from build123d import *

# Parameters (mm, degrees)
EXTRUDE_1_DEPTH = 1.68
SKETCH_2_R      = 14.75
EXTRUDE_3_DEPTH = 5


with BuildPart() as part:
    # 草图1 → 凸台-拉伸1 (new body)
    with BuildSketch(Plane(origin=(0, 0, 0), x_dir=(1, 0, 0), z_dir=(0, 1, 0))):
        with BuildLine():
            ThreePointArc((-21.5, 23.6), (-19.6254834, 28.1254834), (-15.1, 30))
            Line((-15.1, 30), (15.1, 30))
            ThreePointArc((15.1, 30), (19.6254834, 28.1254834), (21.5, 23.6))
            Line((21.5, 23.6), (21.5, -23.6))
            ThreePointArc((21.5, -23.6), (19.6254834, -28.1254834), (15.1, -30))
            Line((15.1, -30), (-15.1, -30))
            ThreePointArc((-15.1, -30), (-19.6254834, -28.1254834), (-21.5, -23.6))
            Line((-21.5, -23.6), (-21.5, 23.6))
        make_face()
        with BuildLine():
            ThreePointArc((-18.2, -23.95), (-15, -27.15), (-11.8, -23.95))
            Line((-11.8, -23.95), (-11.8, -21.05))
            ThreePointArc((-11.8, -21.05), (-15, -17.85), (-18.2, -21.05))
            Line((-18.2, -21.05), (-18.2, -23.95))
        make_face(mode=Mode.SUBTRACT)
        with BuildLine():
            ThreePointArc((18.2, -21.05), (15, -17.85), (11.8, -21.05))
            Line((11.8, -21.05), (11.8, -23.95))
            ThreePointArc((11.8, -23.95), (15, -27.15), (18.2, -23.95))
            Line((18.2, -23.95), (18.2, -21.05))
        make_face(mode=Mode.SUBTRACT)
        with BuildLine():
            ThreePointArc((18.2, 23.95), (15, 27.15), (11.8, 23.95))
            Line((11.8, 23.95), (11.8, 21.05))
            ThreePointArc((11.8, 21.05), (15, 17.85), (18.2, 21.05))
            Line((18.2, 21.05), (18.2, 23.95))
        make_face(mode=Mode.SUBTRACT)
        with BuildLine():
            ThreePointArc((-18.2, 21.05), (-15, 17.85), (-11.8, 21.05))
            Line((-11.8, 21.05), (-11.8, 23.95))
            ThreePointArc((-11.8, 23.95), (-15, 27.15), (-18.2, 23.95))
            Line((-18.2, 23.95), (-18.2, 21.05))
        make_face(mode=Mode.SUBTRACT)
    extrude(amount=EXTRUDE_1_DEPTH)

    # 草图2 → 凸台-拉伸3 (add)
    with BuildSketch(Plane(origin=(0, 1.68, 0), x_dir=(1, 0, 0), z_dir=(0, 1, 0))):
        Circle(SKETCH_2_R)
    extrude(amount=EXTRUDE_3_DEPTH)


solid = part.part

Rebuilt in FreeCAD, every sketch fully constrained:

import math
import FreeCAD as App
import Part
import Sketcher
from FreeCAD import Vector
Q = App.Units.Quantity

doc = App.newDocument("Part")
params = doc.addObject("Spreadsheet::Sheet", "Params")
for row, (alias, value) in enumerate([
    ("sketch1_radius", "6.4 mm"),
    ("sketch1_radius2", "3.2 mm"),
    ("sketch1_width", "30.2 mm"),
    ("sketch1_height", "47.2 mm"),
    ("sketch1_height2", "2.9 mm"),
    ("pad1_length", "1.68 mm"),
    ("sketch2_diameter", "29.5 mm"),
    ("pad2_length", "5 mm"),
], start=1):
    params.set(f"A{row}", alias)
    params.set(f"B{row}", "=" + value)
    params.setAlias(f"B{row}", alias)

body = doc.addObject("PartDesign::Body", "Body")

# Sketch on XZ plane
sketch1 = doc.addObject("Sketcher::SketchObject", "Sketch")
body.addObject(sketch1)
sketch1.AttachmentSupport = (doc.XZ_Plane, [""])
sketch1.MapMode = "FlatFace"
sketch1.addGeometry([
    Part.ArcOfCircle(Part.Circle(Vector(-15.1, -23.6, 0), Vector(0, 0, 1), 6.4), math.radians(180), math.radians(270)),  # 0
    Part.LineSegment(Vector(-21.5, -23.6, 0), Vector(-21.5, 23.6, 0)),  # 1
    Part.ArcOfCircle(Part.Circle(Vector(-15.1, 23.6, 0), Vector(0, 0, 1), 6.4), math.radians(90), math.radians(180)),  # 2
    Part.LineSegment(Vector(-15.1, 30, 0), Vector(15.1, 30, 0)),  # 3
    Part.ArcOfCircle(Part.Circle(Vector(15.1, 23.6, 0), Vector(0, 0, 1), 6.4), math.radians(0), math.radians(90)),  # 4
    Part.LineSegment(Vector(21.5, 23.6, 0), Vector(21.5, -23.6, 0)),  # 5
    Part.ArcOfCircle(Part.Circle(Vector(15.1, -23.6, 0), Vector(0, 0, 1), 6.4), math.radians(-90), math.radians(0)),  # 6
    Part.LineSegment(Vector(15.1, -30, 0), Vector(-15.1, -30, 0)),  # 7
    Part.LineSegment(Vector(18.2, 21.1, 0), Vector(18.2, 23.9, 0)),  # 8
    Part.ArcOfCircle(Part.Circle(Vector(15, 23.9, 0), Vector(0, 0, 1), 3.2), math.radians(0), math.radians(180)),  # 9
    Part.LineSegment(Vector(11.8, 23.9, 0), Vector(11.8, 21.1, 0)),  # 10
    Part.ArcOfCircle(Part.Circle(Vector(15, 21.1, 0), Vector(0, 0, 1), 3.2), math.radians(180), math.radians(360)),  # 11
    Part.LineSegment(Vector(-18.2, 23.9, 0), Vector(-18.2, 21.1, 0)),  # 12
    Part.ArcOfCircle(Part.Circle(Vector(-15, 21.1, 0), Vector(0, 0, 1), 3.2), math.radians(180), math.radians(360)),  # 13
    Part.LineSegment(Vector(-11.8, 21.1, 0), Vector(-11.8, 23.9, 0)),  # 14
    Part.ArcOfCircle(Part.Circle(Vector(-15, 23.9, 0), Vector(0, 0, 1), 3.2), math.radians(0), math.radians(180)),  # 15
    Part.LineSegment(Vector(18.2, -23.9, 0), Vector(18.2, -21.1, 0)),  # 16
    Part.ArcOfCircle(Part.Circle(Vector(15, -21.1, 0), Vector(0, 0, 1), 3.2), math.radians(0), math.radians(180)),  # 17
    Part.LineSegment(Vector(11.8, -21.1, 0), Vector(11.8, -23.9, 0)),  # 18
    Part.ArcOfCircle(Part.Circle(Vector(15, -23.9, 0), Vector(0, 0, 1), 3.2), math.radians(180), math.radians(360)),  # 19
    Part.LineSegment(Vector(-18.2, -21.1, 0), Vector(-18.2, -23.9, 0)),  # 20
    Part.ArcOfCircle(Part.Circle(Vector(-15, -23.9, 0), Vector(0, 0, 1), 3.2), math.radians(180), math.radians(360)),  # 21
    Part.LineSegment(Vector(-11.8, -23.9, 0), Vector(-11.8, -21.1, 0)),  # 22
    Part.ArcOfCircle(Part.Circle(Vector(-15, -21.1, 0), Vector(0, 0, 1), 3.2), math.radians(0), math.radians(180)),  # 23
], False)
sketch1.addConstraint([
    Sketcher.Constraint("Tangent", 0, 1, 1, 1),
    Sketcher.Constraint("Tangent", 1, 2, 2, 2),
    Sketcher.Constraint("Tangent", 2, 1, 3, 1),
    Sketcher.Constraint("Tangent", 3, 2, 4, 2),
    Sketcher.Constraint("Tangent", 4, 1, 5, 1),
    Sketcher.Constraint("Tangent", 5, 2, 6, 2),
    Sketcher.Constraint("Tangent", 6, 1, 7, 1),
    Sketcher.Constraint("Tangent", 7, 2, 0, 2),
    Sketcher.Constraint("Tangent", 8, 2, 9, 1),
    Sketcher.Constraint("Tangent", 9, 2, 10, 1),
    Sketcher.Constraint("Tangent", 10, 2, 11, 1),
    Sketcher.Constraint("Tangent", 11, 2, 8, 1),
    Sketcher.Constraint("Tangent", 12, 2, 13, 1),
    Sketcher.Constraint("Tangent", 13, 2, 14, 1),
    Sketcher.Constraint("Tangent", 14, 2, 15, 1),
    Sketcher.Constraint("Tangent", 15, 2, 12, 1),
    Sketcher.Constraint("Tangent", 16, 2, 17, 1),
    Sketcher.Constraint("Tangent", 17, 2, 18, 1),
    Sketcher.Constraint("Tangent", 18, 2, 19, 1),
    Sketcher.Constraint("Tangent", 19, 2, 16, 1),
    Sketcher.Constraint("Tangent", 20, 2, 21, 1),
    Sketcher.Constraint("Tangent", 21, 2, 22, 1),
    Sketcher.Constraint("Tangent", 22, 2, 23, 1),
    Sketcher.Constraint("Tangent", 23, 2, 20, 1),
    Sketcher.Constraint("Vertical", 1),
    Sketcher.Constraint("Horizontal", 3),
    Sketcher.Constraint("Vertical", 5),
    Sketcher.Constraint("Horizontal", 7),
    Sketcher.Constraint("Vertical", 8),
    Sketcher.Constraint("Vertical", 10),
    Sketcher.Constraint("Vertical", 12),
    Sketcher.Constraint("Vertical", 14),
    Sketcher.Constraint("Vertical", 16),
    Sketcher.Constraint("Vertical", 18),
    Sketcher.Constraint("Vertical", 20),
    Sketcher.Constraint("Vertical", 22),
    Sketcher.Constraint("Equal", 0, 2),
    Sketcher.Constraint("Equal", 2, 4),
    Sketcher.Constraint("Equal", 4, 6),
    Sketcher.Constraint("Equal", 11, 13),
    Sketcher.Constraint("Equal", 15, 17),
    Sketcher.Constraint("Equal", 19, 21),
    Sketcher.Constraint("Symmetric", 0, 3, 4, 3, -1, 1),
    Sketcher.Constraint("Symmetric", 13, 3, 17, 3, -1, 1),
    Sketcher.Constraint("Symmetric", 9, 3, 21, 3, -1, 1),
    Sketcher.Constraint("Symmetric", 11, 3, 13, 3, -2),
    Sketcher.Constraint("Horizontal", 9, 3, 15, 3),
    Sketcher.Constraint("Horizontal", 19, 3, 21, 3),
    Sketcher.Constraint("Horizontal", 17, 3, 23, 3),
    Sketcher.Constraint("Radius", 0, Q("6.4 mm")),
    Sketcher.Constraint("Radius", 9, Q("3.2 mm")),
    Sketcher.Constraint("DistanceX", 3, 1, 3, 2, Q("30.2 mm")),
    Sketcher.Constraint("DistanceY", 1, 1, 1, 2, Q("47.2 mm")),
    Sketcher.Constraint("DistanceY", 8, 1, 8, 2, Q("2.9 mm")),
    Sketcher.Constraint("DistanceX", -1, 1, 9, 3, Q("15 mm")),
    Sketcher.Constraint("DistanceY", 17, 3, 9, 3, Q("45 mm")),
])
sketch1.setExpression("Constraints[49]", "Params.sketch1_radius")
sketch1.setExpression("Constraints[50]", "Params.sketch1_radius2")
sketch1.setExpression("Constraints[51]", "Params.sketch1_width")
sketch1.setExpression("Constraints[52]", "Params.sketch1_height")
sketch1.setExpression("Constraints[53]", "Params.sketch1_height2")
pad1 = doc.addObject("PartDesign::Pad", "Pad")
body.addObject(pad1)
pad1.Profile = sketch1
pad1.setExpression("Length", "Params.pad1_length")
pad1.Reversed = True

# Sketch on XZ plane
sketch2 = doc.addObject("Sketcher::SketchObject", "Sketch001")
body.addObject(sketch2)
sketch2.AttachmentSupport = (doc.XZ_Plane, [""])
sketch2.MapMode = "FlatFace"
sketch2.AttachmentOffset = App.Placement(Vector(0, 0, -1.68), App.Rotation())
sketch2.addGeometry(Part.Circle(Vector(0, 0, 0), Vector(0, 0, 1), 15), False)
sketch2.addConstraint([
    Sketcher.Constraint("Coincident", 0, 3, -1, 1),
    Sketcher.Constraint("Diameter", 0, Q("29.5 mm")),
])
sketch2.setExpression("Constraints[1]", "Params.sketch2_diameter")
pad2 = doc.addObject("PartDesign::Pad", "Pad001")
body.addObject(pad2)
pad2.Profile = sketch2
pad2.setExpression("Length", "Params.pad2_length")
pad2.Reversed = True

doc.recompute()
